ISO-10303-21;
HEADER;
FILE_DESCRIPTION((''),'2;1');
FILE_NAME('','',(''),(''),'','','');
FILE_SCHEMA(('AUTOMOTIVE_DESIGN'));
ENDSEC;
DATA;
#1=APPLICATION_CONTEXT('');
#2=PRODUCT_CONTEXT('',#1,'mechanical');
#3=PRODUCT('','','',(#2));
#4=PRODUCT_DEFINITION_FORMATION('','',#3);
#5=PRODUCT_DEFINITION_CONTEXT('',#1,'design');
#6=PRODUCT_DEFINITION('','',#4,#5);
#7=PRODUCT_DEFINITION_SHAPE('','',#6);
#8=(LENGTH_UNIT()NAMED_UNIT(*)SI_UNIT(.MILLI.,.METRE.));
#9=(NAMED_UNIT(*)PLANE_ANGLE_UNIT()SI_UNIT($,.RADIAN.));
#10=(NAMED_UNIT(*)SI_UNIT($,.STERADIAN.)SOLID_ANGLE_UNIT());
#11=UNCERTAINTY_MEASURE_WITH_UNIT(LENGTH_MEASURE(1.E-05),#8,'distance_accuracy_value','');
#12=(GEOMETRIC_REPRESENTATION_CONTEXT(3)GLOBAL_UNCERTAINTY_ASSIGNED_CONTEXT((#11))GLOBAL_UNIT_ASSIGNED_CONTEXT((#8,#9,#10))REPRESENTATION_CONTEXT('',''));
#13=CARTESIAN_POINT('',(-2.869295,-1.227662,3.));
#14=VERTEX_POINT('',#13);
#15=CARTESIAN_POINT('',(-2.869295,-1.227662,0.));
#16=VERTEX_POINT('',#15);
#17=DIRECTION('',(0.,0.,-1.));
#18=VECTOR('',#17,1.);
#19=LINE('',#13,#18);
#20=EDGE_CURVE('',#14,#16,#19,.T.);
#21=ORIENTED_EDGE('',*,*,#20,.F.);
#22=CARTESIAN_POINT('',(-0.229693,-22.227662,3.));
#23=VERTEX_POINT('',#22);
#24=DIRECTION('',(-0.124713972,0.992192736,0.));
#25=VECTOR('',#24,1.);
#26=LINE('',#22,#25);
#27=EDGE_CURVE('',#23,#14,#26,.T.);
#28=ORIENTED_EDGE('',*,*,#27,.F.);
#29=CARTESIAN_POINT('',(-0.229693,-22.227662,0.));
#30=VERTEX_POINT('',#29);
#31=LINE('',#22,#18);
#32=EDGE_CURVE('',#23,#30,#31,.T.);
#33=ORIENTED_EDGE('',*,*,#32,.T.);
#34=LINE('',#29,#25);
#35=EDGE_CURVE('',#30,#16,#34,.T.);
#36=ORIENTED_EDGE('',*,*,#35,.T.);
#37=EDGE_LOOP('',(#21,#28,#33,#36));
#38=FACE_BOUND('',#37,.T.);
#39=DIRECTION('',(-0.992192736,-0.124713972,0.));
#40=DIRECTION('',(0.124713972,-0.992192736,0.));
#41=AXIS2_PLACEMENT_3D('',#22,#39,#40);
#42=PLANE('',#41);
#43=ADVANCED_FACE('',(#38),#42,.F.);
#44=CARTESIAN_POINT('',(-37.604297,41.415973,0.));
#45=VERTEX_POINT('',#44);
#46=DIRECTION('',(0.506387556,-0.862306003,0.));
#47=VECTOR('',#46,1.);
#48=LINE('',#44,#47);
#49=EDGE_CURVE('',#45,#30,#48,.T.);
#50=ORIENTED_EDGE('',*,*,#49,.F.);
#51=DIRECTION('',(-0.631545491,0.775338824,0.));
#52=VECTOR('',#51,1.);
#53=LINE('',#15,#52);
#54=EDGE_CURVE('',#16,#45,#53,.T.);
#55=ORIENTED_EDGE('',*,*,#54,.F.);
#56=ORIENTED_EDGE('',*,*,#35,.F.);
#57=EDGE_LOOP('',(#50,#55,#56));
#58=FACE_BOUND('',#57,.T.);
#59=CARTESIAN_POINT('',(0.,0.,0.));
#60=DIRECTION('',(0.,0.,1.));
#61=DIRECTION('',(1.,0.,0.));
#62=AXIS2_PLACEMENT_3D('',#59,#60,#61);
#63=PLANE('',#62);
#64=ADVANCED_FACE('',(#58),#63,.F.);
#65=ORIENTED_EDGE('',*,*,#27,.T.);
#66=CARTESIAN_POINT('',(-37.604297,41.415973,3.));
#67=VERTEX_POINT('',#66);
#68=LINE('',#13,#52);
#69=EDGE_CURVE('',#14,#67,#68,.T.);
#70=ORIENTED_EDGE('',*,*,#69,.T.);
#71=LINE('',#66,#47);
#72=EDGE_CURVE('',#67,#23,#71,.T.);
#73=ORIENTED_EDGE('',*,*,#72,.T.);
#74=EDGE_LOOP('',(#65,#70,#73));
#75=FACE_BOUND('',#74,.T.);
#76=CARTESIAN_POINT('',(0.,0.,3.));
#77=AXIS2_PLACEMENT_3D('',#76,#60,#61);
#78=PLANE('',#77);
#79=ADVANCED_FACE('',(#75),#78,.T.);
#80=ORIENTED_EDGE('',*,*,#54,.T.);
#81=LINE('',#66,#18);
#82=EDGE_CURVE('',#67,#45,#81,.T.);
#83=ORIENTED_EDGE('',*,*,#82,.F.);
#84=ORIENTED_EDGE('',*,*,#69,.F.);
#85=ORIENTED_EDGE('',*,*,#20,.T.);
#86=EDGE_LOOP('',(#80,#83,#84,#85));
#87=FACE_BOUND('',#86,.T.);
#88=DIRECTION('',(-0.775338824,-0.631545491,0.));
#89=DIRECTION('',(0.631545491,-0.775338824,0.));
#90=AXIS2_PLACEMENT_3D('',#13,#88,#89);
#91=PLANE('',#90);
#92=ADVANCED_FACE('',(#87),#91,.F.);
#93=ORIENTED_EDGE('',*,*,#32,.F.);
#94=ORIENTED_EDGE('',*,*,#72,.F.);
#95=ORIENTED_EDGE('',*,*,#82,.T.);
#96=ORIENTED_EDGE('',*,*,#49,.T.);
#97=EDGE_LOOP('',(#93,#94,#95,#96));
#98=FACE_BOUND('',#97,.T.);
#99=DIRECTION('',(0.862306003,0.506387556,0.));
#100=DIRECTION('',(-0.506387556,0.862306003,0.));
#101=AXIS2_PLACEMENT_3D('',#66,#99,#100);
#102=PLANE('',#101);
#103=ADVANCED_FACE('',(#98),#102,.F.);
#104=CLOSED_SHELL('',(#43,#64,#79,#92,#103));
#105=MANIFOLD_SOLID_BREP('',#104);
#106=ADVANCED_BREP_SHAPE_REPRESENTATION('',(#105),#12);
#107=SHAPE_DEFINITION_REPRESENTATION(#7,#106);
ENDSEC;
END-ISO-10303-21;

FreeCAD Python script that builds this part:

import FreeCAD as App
import Part
import Sketcher

V = App.Vector

doc = App.newDocument("Part")
body = doc.addObject("PartDesign::Body", "Body")

sketch1 = doc.addObject("Sketcher::SketchObject", "Sketch")
body.addObject(sketch1)
sketch1.AttachmentSupport = (doc.XY_Plane, [""])
sketch1.MapMode = "FlatFace"
sketch1.addGeometry([
    Part.LineSegment(V(-2.869295, -1.227662, 0), V(-37.604297, 41.415973, 0)),
    Part.LineSegment(V(-37.604297, 41.415973, 0), V(-0.229693, -22.227662, 0)),
    Part.LineSegment(V(-0.229693, -22.227662, 0), V(-2.869295, -1.227662, 0)),
], False)
sketch1.addConstraint([
    Sketcher.Constraint("Coincident", 0, 2, 1, 1),
    Sketcher.Constraint("Coincident", 1, 2, 2, 1),
    Sketcher.Constraint("Coincident", 2, 2, 0, 1),
    Sketcher.Constraint("Distance", 0, 55.0),
    Sketcher.Constraint("DistanceY", 1, 2, 2, 2, 21.0),
    Sketcher.Constraint("DistanceX", 2, 2, 1, 2, 2.639601),
    Sketcher.Constraint("DistanceY", 1, 2, -1, 1, 22.227662),
    Sketcher.Constraint("Distance", 1, 73.806323),
    Sketcher.Constraint("DistanceX", 0, 2, -1, 1, 37.604297),
])
pad1 = doc.addObject("PartDesign::Pad", "Pad")
body.addObject(pad1)
pad1.Profile = sketch1
pad1.Length = 3

doc.recompute()
